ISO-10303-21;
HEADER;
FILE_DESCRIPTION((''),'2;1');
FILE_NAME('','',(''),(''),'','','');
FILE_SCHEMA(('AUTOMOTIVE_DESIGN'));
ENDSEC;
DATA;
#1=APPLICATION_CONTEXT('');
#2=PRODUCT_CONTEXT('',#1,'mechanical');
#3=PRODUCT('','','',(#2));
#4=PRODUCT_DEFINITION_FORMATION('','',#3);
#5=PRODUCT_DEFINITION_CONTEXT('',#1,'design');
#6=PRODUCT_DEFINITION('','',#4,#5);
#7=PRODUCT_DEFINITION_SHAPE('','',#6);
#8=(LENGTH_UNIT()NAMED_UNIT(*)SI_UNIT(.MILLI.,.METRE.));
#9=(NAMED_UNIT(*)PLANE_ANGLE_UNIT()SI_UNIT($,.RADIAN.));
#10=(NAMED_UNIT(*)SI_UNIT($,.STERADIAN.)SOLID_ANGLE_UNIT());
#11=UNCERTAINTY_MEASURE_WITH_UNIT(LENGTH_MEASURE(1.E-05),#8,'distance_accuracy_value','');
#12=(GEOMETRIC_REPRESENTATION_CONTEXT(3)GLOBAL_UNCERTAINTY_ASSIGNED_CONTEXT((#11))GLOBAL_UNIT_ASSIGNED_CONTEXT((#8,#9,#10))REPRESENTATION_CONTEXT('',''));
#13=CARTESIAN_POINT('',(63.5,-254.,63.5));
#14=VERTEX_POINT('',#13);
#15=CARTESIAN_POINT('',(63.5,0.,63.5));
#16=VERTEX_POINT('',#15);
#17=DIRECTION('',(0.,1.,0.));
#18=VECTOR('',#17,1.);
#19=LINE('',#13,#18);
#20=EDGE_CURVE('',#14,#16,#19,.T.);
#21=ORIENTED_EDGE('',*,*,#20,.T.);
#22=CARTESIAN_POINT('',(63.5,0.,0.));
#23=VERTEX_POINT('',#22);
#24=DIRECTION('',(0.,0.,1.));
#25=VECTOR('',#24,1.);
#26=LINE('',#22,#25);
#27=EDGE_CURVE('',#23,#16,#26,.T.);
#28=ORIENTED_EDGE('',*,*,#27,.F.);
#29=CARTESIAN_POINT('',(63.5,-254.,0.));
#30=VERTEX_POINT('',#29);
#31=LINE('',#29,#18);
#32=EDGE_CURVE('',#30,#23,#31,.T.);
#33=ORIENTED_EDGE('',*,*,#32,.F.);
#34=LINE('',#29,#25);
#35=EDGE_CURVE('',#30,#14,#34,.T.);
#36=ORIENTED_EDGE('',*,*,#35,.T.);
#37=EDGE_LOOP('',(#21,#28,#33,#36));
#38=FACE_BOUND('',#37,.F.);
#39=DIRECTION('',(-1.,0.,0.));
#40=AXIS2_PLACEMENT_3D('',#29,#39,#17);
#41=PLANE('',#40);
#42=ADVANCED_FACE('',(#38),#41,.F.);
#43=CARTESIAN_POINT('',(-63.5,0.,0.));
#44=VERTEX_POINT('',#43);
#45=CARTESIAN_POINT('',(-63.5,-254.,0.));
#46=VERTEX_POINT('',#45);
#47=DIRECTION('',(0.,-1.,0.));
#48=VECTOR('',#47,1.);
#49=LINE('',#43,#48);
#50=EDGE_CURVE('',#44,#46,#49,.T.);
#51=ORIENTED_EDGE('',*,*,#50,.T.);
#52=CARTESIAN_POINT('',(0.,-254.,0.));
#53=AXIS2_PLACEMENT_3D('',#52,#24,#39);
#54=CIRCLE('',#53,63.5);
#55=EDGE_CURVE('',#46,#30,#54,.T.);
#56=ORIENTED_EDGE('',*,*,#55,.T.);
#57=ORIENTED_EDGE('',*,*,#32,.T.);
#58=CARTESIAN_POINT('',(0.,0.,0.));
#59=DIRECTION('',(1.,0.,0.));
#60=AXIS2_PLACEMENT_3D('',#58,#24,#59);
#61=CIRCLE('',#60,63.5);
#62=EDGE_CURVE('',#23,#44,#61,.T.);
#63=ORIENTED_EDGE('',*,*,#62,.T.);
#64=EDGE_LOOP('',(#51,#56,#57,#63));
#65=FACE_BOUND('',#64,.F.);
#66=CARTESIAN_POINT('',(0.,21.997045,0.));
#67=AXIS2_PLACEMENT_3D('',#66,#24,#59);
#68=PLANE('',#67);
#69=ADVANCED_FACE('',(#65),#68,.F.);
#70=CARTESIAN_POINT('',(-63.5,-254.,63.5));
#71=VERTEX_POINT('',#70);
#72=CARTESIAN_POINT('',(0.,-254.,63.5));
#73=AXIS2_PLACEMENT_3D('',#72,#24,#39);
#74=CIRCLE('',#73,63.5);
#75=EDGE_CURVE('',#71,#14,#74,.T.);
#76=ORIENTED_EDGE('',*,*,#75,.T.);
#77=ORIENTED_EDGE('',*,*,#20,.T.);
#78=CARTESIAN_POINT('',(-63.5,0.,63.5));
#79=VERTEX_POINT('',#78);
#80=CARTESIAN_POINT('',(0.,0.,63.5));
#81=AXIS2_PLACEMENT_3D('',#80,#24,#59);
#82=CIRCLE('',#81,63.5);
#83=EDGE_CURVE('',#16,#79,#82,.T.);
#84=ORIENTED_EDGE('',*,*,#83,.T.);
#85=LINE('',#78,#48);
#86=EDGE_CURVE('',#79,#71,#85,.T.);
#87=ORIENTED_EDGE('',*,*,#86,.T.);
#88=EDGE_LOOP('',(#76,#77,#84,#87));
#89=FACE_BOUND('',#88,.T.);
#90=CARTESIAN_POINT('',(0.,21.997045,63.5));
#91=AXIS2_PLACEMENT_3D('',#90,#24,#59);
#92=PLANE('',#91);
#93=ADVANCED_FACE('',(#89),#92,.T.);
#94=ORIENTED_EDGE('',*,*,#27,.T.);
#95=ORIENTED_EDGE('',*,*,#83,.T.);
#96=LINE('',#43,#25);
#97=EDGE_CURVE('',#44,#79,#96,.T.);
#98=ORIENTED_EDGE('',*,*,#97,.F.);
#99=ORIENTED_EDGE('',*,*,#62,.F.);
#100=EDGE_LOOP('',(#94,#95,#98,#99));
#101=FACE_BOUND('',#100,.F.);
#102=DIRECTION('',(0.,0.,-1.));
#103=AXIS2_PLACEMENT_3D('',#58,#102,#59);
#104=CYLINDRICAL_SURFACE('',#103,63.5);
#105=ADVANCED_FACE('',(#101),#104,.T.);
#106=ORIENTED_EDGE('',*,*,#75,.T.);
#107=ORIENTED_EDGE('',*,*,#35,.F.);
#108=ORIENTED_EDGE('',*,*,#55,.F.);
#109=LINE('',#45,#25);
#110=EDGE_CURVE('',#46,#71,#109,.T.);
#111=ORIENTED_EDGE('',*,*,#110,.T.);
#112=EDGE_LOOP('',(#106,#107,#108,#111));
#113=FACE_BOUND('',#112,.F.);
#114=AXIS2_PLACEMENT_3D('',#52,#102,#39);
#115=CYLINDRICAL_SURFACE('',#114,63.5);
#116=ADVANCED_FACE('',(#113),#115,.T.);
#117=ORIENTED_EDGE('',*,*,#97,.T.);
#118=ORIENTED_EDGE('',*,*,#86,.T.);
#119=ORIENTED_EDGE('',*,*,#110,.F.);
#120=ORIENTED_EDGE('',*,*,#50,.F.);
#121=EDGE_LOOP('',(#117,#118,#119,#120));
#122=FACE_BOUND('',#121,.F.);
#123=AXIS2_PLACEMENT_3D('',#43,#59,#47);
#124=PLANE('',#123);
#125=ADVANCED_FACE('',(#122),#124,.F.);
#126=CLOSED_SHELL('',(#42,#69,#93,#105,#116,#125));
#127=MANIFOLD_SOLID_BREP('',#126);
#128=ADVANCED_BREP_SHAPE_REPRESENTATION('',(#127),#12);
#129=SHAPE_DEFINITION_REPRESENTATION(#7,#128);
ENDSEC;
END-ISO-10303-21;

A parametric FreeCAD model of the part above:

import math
import FreeCAD as App
import Part
import Sketcher
Q = App.Units.Quantity

doc = App.newDocument("Part")
params = doc.addObject("Spreadsheet::Sheet", "Params")
for row, (alias, value) in enumerate([
    ("sketch1_radius", "2.5 in"),
    ("sketch1_height", "10 in"),
    ("pad1_length", "2.5 in"),
], start=1):
    params.set(f"A{row}", alias)
    params.set(f"B{row}", "=" + value)
    params.setAlias(f"B{row}", alias)

body = doc.addObject("PartDesign::Body", "Body")

# Sketch on XY plane
sketch1 = body.newObject("Sketcher::SketchObject", "Sketch")
sketch1.AttachmentSupport = (doc.getObject("XY_Plane"), [""])
sketch1.MapMode = "FlatFace"
sketch1.addGeometry([
    Part.ArcOfCircle(Part.Circle(App.Vector(0, 0, 0), App.Vector(0, 0, 1), 63.5), math.radians(0), math.radians(180)),
    Part.LineSegment(App.Vector(-63.5, 0, 0), App.Vector(-63.5, -254, 0)),
    Part.ArcOfCircle(Part.Circle(App.Vector(0, -254, 0), App.Vector(0, 0, 1), 63.5), math.radians(180), math.radians(360)),
    Part.LineSegment(App.Vector(63.5, -254, 0), App.Vector(63.5, 0, 0)),
], False)
sketch1.addConstraint([
    Sketcher.Constraint("Tangent", 0, 2, 1, 1),
    Sketcher.Constraint("Tangent", 1, 2, 2, 1),
    Sketcher.Constraint("Tangent", 2, 2, 3, 1),
    Sketcher.Constraint("Tangent", 3, 2, 0, 1),
    Sketcher.Constraint("Vertical", 1),
    Sketcher.Constraint("Vertical", 3),
    Sketcher.Constraint("Coincident", 0, 3, -1, 1),
    Sketcher.Constraint("Radius", 0, Q("2.5 in")),
    Sketcher.Constraint("DistanceY", 1, 2, 1, 1, Q("10 in")),
])
sketch1.setExpression("Constraints[7]", "Params.sketch1_radius")
sketch1.setExpression("Constraints[8]", "Params.sketch1_height")
pad1 = body.newObject("PartDesign::Pad", "Pad")
pad1.Profile = sketch1
pad1.setExpression("Length", "Params.pad1_length")

doc.recompute()
